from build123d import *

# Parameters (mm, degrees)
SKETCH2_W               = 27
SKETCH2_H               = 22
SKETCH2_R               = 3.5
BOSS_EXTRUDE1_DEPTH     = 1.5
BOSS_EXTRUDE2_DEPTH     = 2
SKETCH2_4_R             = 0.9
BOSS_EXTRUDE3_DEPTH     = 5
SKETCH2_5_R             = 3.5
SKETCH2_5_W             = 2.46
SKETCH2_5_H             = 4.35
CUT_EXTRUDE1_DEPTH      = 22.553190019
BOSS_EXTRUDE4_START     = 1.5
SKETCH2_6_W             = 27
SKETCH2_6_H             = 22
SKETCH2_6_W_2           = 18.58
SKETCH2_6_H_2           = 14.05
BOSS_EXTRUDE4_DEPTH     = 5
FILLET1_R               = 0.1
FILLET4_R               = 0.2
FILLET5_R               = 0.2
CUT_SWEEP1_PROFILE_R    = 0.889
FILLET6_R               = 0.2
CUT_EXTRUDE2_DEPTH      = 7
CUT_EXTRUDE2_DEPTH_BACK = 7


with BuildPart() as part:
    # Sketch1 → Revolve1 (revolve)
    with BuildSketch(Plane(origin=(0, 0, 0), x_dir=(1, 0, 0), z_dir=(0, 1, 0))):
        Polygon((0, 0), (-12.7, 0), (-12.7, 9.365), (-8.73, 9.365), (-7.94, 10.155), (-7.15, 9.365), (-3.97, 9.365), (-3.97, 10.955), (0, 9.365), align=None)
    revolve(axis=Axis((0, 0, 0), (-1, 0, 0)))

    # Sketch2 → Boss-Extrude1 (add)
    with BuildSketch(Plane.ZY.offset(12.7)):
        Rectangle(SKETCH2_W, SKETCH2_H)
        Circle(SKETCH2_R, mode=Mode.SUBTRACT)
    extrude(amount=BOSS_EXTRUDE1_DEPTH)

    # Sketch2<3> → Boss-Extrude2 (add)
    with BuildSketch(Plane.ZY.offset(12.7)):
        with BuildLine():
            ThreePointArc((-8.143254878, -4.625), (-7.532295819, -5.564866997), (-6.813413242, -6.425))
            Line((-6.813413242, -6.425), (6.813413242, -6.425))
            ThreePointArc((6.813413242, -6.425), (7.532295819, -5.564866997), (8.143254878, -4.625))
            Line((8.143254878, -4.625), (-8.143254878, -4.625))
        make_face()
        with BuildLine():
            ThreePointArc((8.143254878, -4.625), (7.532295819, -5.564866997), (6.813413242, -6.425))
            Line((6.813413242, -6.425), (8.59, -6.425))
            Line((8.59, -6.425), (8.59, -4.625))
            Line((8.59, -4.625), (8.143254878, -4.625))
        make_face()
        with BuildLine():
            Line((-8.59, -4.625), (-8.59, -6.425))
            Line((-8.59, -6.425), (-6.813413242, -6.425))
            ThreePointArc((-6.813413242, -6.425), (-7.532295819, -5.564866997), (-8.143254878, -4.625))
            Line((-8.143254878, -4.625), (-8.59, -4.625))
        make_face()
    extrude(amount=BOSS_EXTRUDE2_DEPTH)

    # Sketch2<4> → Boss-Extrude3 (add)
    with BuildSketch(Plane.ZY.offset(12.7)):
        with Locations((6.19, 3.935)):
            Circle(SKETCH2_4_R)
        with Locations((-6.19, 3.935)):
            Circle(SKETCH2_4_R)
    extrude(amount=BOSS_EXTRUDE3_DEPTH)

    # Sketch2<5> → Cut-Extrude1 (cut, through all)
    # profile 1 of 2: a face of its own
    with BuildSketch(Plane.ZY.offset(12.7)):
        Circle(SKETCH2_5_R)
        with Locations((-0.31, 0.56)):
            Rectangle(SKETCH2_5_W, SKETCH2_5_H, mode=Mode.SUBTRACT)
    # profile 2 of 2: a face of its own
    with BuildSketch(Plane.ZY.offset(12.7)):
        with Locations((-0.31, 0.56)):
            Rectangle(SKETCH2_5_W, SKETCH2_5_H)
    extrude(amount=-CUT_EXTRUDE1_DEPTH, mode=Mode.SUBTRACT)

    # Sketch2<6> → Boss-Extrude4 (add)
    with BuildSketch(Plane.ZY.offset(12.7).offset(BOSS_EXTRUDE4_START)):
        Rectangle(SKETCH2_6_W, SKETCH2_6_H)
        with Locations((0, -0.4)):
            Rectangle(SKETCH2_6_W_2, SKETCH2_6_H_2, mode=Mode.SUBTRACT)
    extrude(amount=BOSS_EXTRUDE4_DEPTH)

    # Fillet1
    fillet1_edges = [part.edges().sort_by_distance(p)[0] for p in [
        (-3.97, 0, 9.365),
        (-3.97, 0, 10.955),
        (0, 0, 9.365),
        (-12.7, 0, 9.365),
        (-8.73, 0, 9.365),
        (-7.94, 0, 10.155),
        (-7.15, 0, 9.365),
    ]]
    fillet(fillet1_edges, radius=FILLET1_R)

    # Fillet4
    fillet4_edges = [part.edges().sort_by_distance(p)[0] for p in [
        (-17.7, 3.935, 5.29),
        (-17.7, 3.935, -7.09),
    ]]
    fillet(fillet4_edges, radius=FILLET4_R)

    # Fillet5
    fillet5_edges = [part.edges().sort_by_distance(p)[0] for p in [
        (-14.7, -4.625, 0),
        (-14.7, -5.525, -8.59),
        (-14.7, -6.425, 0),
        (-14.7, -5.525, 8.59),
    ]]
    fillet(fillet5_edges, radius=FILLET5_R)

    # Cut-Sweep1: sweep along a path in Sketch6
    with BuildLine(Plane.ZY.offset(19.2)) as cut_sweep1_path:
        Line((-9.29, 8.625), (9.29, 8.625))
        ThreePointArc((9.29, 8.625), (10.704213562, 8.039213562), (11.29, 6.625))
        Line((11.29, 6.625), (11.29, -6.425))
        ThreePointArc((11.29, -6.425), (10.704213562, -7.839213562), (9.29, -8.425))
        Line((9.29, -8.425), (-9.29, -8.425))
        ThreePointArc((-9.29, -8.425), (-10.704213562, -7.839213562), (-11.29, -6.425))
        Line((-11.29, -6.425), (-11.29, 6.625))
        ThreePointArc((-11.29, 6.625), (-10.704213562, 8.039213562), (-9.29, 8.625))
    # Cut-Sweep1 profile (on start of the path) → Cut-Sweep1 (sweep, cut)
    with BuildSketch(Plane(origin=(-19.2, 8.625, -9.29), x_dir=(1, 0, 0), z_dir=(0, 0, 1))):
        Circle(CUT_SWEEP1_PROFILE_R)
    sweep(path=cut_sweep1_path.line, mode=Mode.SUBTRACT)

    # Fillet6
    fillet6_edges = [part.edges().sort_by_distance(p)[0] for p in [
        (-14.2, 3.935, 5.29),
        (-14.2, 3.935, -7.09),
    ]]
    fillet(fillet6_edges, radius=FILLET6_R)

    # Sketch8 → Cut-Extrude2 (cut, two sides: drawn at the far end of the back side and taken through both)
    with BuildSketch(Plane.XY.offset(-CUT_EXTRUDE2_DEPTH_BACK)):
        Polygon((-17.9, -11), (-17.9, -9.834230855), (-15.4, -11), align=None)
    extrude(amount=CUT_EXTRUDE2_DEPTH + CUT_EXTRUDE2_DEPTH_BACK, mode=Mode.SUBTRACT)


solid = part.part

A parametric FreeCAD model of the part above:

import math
import FreeCAD as App
import Part
import Sketcher

V = App.Vector
Q = App.Units.Quantity


def edges_at(feature, points):
    """Names of the edges that pass closest to the given points."""
    edges = feature.Shape.Edges
    near = lambda p: min(range(len(edges)), key=lambda i: edges[i].distToShape(Part.Vertex(*p))[0])
    return sorted({f"Edge{near(p) + 1}" for p in points})


def add_polygon(sketch, points):
    """Adds a closed chain of lines whose ends are joined by coincident constraints."""
    first, n = sketch.GeometryCount, len(points)
    for a, b in zip(points, points[1:] + points[:1]):
        sketch.addGeometry(Part.LineSegment(App.Vector(*a, 0), App.Vector(*b, 0)), False)
    for i in range(n):
        sketch.addConstraint(Sketcher.Constraint("Coincident", first + i, 2, first + (i + 1) % n, 1))

doc = App.newDocument("Part")
params = doc.addObject("Spreadsheet::Sheet", "Params")
for row, (alias, value) in enumerate([
    ("sketch1_width", "12.7 mm"),
    ("sketch1_width2", "3.18 mm"),
    ("sketch1_width3", "3.97 mm"),
    ("sketch1_height", "1.59 mm"),
    ("revolution_angle", "360 deg"),
    ("sketch2_diameter", "7 mm"),
    ("sketch2_width", "22 mm"),
    ("sketch2_height", "27 mm"),
    ("pad1_length", "1.5 mm"),
    ("sketch3_width", "1.8 mm"),
    ("sketch3_height", "17.18 mm"),
    ("pad2_length", "2 mm"),
    ("sketch4_diameter", "1.8 mm"),
    ("pad3_length", "5 mm"),
    ("sketch5_diameter", "7 mm"),
    ("pocket1_length", "22.55319 mm"),
    ("sketch6_width", "22 mm"),
    ("sketch6_height", "27 mm"),
    ("sketch6_width2", "14.05 mm"),
    ("sketch6_height2", "18.58 mm"),
    ("pad4_length", "5 mm"),
    ("fillet_radius", "0.1 mm"),
    ("fillet2_radius", "0.2 mm"),
    ("fillet3_radius", "0.2 mm"),
    ("sketch8_radius", "2 mm"),
    ("sketch8_width", "13.05 mm"),
    ("sketch8_height", "18.58 mm"),
    ("fillet4_radius", "0.2 mm"),
    ("sketch9_width", "2.5 mm"),
    ("pocket2_length", "7 mm"),
    ("pocket2_length2", "7 mm"),
], start=1):
    params.set(f"A{row}", alias)
    params.set(f"B{row}", "=" + value)
    params.setAlias(f"B{row}", alias)

body = doc.addObject("PartDesign::Body", "Body")

# Sketch on XZ plane
sketch1 = doc.addObject("Sketcher::SketchObject", "Sketch")
body.addObject(sketch1)
sketch1.AttachmentSupport = (doc.XZ_Plane, [""])
sketch1.MapMode = "FlatFace"
add_polygon(sketch1, [(-12.7, 0), (0, 0), (0, -9.4), (-4, -11), (-4, -9.4), (-7.2, -9.4), (-7.9, -10.2), (-8.7, -9.4), (-12.7, -9.4)])  # lines 0-8
sketch1.addConstraint([
    Sketcher.Constraint("Horizontal", 0),
    Sketcher.Constraint("Vertical", 1),
    Sketcher.Constraint("Vertical", 3),
    Sketcher.Constraint("Horizontal", 4),
    Sketcher.Constraint("Horizontal", 7),
    Sketcher.Constraint("Vertical", 8),
    Sketcher.Constraint("Coincident", 0, 2, -1, 1),
    Sketcher.Constraint("Perpendicular", 5, 6),
    Sketcher.Constraint("Horizontal", 1, 2, 3, 2),
    Sketcher.Constraint("Horizontal", 4, 2, 6, 2),
    Sketcher.Constraint("Equal", 5, 6),
    Sketcher.Constraint("DistanceX", 0, 1, 0, 2, 12.7),
    Sketcher.Constraint("DistanceX", 4, 2, 4, 1, 3.18),
    Sketcher.Constraint("DistanceX", 7, 2, 7, 1, 3.97),
    Sketcher.Constraint("DistanceY", 3, 1, 3, 2, 1.59),
    Sketcher.Constraint("DistanceY", 2, 2, 5, 2, 0.8),
    Sketcher.Constraint("DistanceY", 1, 2, 1, 1, 9.365),
])
sketch1.setExpression("Constraints[20]", "Params.sketch1_width")
sketch1.setExpression("Constraints[21]", "Params.sketch1_width2")
sketch1.setExpression("Constraints[22]", "Params.sketch1_width3")
sketch1.setExpression("Constraints[23]", "Params.sketch1_height")
revolution = doc.addObject("PartDesign::Revolution", "Revolution")
body.addObject(revolution)
revolution.Profile = sketch1
revolution.ReferenceAxis = (sketch1, ["H_Axis"])
revolution.setExpression("Angle", "Params.revolution_angle")

# Sketch on YZ plane
sketch2 = doc.addObject("Sketcher::SketchObject", "Sketch001")
body.addObject(sketch2)
sketch2.AttachmentSupport = (doc.YZ_Plane, [""])
sketch2.MapMode = "FlatFace"
sketch2.AttachmentOffset = App.Placement(V(0, 0, -12.7), App.Rotation())
add_polygon(sketch2, [(11, -13.5), (-11, -13.5), (-11, 13.5), (11, 13.5)])  # lines 0-3
sketch2.addGeometry(Part.Circle(V(0, 0, 0), V(0, 0, 1), 3.5), False)  # 4
sketch2.addConstraint([
    Sketcher.Constraint("Horizontal", 0),
    Sketcher.Constraint("Vertical", 1),
    Sketcher.Constraint("Horizontal", 2),
    Sketcher.Constraint("Vertical", 3),
    Sketcher.Constraint("Coincident", 4, 3, -1, 1),
    Sketcher.Constraint("Symmetric", 0, 2, 2, 2, -1, 1),
    Sketcher.Constraint("Diameter", 4, 7.0),
    Sketcher.Constraint("DistanceX", 0, 2, 0, 1, 22.0),
    Sketcher.Constraint("DistanceY", 1, 1, 1, 2, 27.0),
])
sketch2.setExpression("Constraints[10]", "Params.sketch2_diameter")
sketch2.setExpression("Constraints[11]", "Params.sketch2_width")
sketch2.setExpression("Constraints[12]", "Params.sketch2_height")
pad1 = doc.addObject("PartDesign::Pad", "Pad")
body.addObject(pad1)
pad1.Profile = sketch2
pad1.setExpression("Length", "Params.pad1_length")
pad1.Reversed = True

# Sketch on YZ plane
sketch3 = doc.addObject("Sketcher::SketchObject", "Sketch002")
body.addObject(sketch3)
sketch3.AttachmentSupport = (doc.YZ_Plane, [""])
sketch3.MapMode = "FlatFace"
sketch3.AttachmentOffset = App.Placement(V(0, 0, -12.7), App.Rotation())
add_polygon(sketch3, [(-6.4, 8.6), (-4.6, 8.6), (-4.6, -8.6), (-6.4, -8.6)])  # lines 0-3
sketch3.addConstraint([
    Sketcher.Constraint("Horizontal", 0),
    Sketcher.Constraint("Vertical", 1),
    Sketcher.Constraint("Horizontal", 2),
    Sketcher.Constraint("Vertical", 3),
    Sketcher.Constraint("DistanceX", 0, 1, 0, 2, 1.8),
    Sketcher.Constraint("DistanceY", 1, 2, 1, 1, 17.18),
    Sketcher.Constraint("DistanceY", -1, 1, 0, 2, 8.59),
    Sketcher.Constraint("DistanceX", 0, 2, -1, 1, 4.625),
])
sketch3.setExpression("Constraints[8]", "Params.sketch3_width")
sketch3.setExpression("Constraints[9]", "Params.sketch3_height")
pad2 = doc.addObject("PartDesign::Pad", "Pad001")
body.addObject(pad2)
pad2.Profile = sketch3
pad2.setExpression("Length", "Params.pad2_length")
pad2.Reversed = True

# Sketch on YZ plane
sketch4 = doc.addObject("Sketcher::SketchObject", "Sketch003")
body.addObject(sketch4)
sketch4.AttachmentSupport = (doc.YZ_Plane, [""])
sketch4.MapMode = "FlatFace"
sketch4.AttachmentOffset = App.Placement(V(0, 0, -12.7), App.Rotation())
sketch4.addGeometry([
    Part.Circle(V(3.9, 6.2, 0), V(0, 0, 1), 0.9),
    Part.Circle(V(3.9, -6.2, 0), V(0, 0, 1), 0.9),
], False)
sketch4.addConstraint([
    Sketcher.Constraint("Equal", 0, 1),
    Sketcher.Constraint("Symmetric", 0, 3, 1, 3, -1),
    Sketcher.Constraint("Diameter", 0, 1.8),
    Sketcher.Constraint("DistanceY", -1, 1, 0, 3, 6.19),
    Sketcher.Constraint("DistanceX", -1, 1, 0, 3, 3.935),
])
sketch4.setExpression("Constraints[2]", "Params.sketch4_diameter")
pad3 = doc.addObject("PartDesign::Pad", "Pad002")
body.addObject(pad3)
pad3.Profile = sketch4
pad3.setExpression("Length", "Params.pad3_length")
pad3.Reversed = True

# Sketch on YZ plane
sketch5 = doc.addObject("Sketcher::SketchObject", "Sketch004")
body.addObject(sketch5)
sketch5.AttachmentSupport = (doc.YZ_Plane, [""])
sketch5.MapMode = "FlatFace"
sketch5.AttachmentOffset = App.Placement(V(0, 0, -12.7), App.Rotation())
sketch5.addGeometry(Part.Circle(V(0, 0, 0), V(0, 0, 1), 3.5), False)
sketch5.addConstraint([
    Sketcher.Constraint("Coincident", 0, 3, -1, 1),
    Sketcher.Constraint("Diameter", 0, 7.0),
])
sketch5.setExpression("Constraints[1]", "Params.sketch5_diameter")
pocket1 = doc.addObject("PartDesign::Pocket", "Pocket")
body.addObject(pocket1)
pocket1.Profile = sketch5
pocket1.setExpression("Length", "Params.pocket1_length")
pocket1.Reversed = True

# Sketch on YZ plane
sketch6 = doc.addObject("Sketcher::SketchObject", "Sketch005")
body.addObject(sketch6)
sketch6.AttachmentSupport = (doc.YZ_Plane, [""])
sketch6.MapMode = "FlatFace"
sketch6.AttachmentOffset = App.Placement(V(0, 0, -14.2), App.Rotation())
add_polygon(sketch6, [(11, -14), (-11, -14), (-11, 14), (11, 14)])  # lines 0-3
add_polygon(sketch6, [(-7, 9), (-7, -9), (7, -9), (7, 9)])  # lines 4-7
sketch6.addConstraint([
    Sketcher.Constraint("Horizontal", 0),
    Sketcher.Constraint("Vertical", 1),
    Sketcher.Constraint("Horizontal", 2),
    Sketcher.Constraint("Vertical", 3),
    Sketcher.Constraint("Vertical", 4),
    Sketcher.Constraint("Horizontal", 5),
    Sketcher.Constraint("Vertical", 6),
    Sketcher.Constraint("Horizontal", 7),
    Sketcher.Constraint("Symmetric", 0, 2, 2, 2, -1, 1),
    Sketcher.Constraint("DistanceX", 0, 2, 0, 1, 22.0),
    Sketcher.Constraint("DistanceY", 1, 1, 1, 2, 27.0),
    Sketcher.Constraint("DistanceX", 5, 1, 5, 2, 14.05),
    Sketcher.Constraint("DistanceY", 4, 2, 4, 1, 18.58),
    Sketcher.Constraint("DistanceY", 4, 2, -1, 1, 9.29),
    Sketcher.Constraint("DistanceX", 4, 2, -1, 1, 7.425),
])
sketch6.setExpression("Constraints[17]", "Params.sketch6_width")
sketch6.setExpression("Constraints[18]", "Params.sketch6_height")
sketch6.setExpression("Constraints[19]", "Params.sketch6_width2")
sketch6.setExpression("Constraints[20]", "Params.sketch6_height2")
pad4 = doc.addObject("PartDesign::Pad", "Pad003")
body.addObject(pad4)
pad4.Profile = sketch6
pad4.setExpression("Length", "Params.pad4_length")
pad4.Reversed = True
doc.recompute()

fillet = doc.addObject("PartDesign::Fillet", "Fillet")
body.addObject(fillet)
fillet.Base = (pad4, edges_at(pad4, [
    (-3.97, 0, 9.365),
    (-3.97, 0, 10.955),
    (0, 0, 9.365),
    (-12.7, 0, 9.365),
    (-8.73, 0, 9.365),
    (-7.94, 0, 10.155),
    (-7.15, 0, 9.365),
]))
fillet.setExpression("Radius", "Params.fillet_radius")
doc.recompute()

fillet2 = doc.addObject("PartDesign::Fillet", "Fillet001")
body.addObject(fillet2)
fillet2.Base = (fillet, edges_at(fillet, [(-17.7, 3.935, 5.29), (-17.7, 3.935, -7.09)]))
fillet2.setExpression("Radius", "Params.fillet2_radius")
doc.recompute()

fillet3 = doc.addObject("PartDesign::Fillet", "Fillet002")
body.addObject(fillet3)
fillet3.Base = (fillet2, edges_at(fillet2, [
    (-14.7, -4.625, 0),
    (-14.7, -5.525, -8.59),
    (-14.7, -6.425, 0),
    (-14.7, -5.525, 8.59),
]))
fillet3.setExpression("Radius", "Params.fillet3_radius")

# Sketch on XY plane
sketch7 = doc.addObject("Sketcher::SketchObject", "Sketch006")
body.addObject(sketch7)
sketch7.AttachmentSupport = (doc.XY_Plane, [""])
sketch7.MapMode = "FlatFace"
sketch7.AttachmentOffset = App.Placement(V(0, 0, -9.29), App.Rotation())
sketch7.addGeometry(Part.Circle(V(-19.2, 8.6, 0), V(0, 0, 1), 0.9), False)
sketch7.addConstraint([
    Sketcher.Constraint("Diameter", 0, 1.778),
    Sketcher.Constraint("DistanceX", 0, 3, -1, 1, 19.2),
    Sketcher.Constraint("DistanceY", -1, 1, 0, 3, 8.625),
])

# Sketch on YZ plane
sketch8 = doc.addObject("Sketcher::SketchObject", "Sketch007")
body.addObject(sketch8)
sketch8.AttachmentSupport = (doc.YZ_Plane, [""])
sketch8.MapMode = "FlatFace"
sketch8.AttachmentOffset = App.Placement(V(0, 0, -19.2), App.Rotation())
sketch8.addGeometry([
    Part.LineSegment(V(8.6, -9.3, 0), V(8.6, 9.3, 0)),  # 0
    Part.ArcOfCircle(Part.Circle(V(6.6, 9.3, 0), V(0, 0, 1), 2), math.radians(0), math.radians(90)),  # 1
    Part.LineSegment(V(6.6, 11.3, 0), V(-6.4, 11.3, 0)),  # 2
    Part.ArcOfCircle(Part.Circle(V(-6.4, 9.3, 0), V(0, 0, 1), 2), math.radians(90), math.radians(180)),  # 3
    Part.LineSegment(V(-8.4, 9.3, 0), V(-8.4, -9.3, 0)),  # 4
    Part.ArcOfCircle(Part.Circle(V(-6.4, -9.3, 0), V(0, 0, 1), 2), math.radians(-180), math.radians(-90)),  # 5
    Part.LineSegment(V(-6.4, -11.3, 0), V(6.6, -11.3, 0)),  # 6
    Part.ArcOfCircle(Part.Circle(V(6.6, -9.3, 0), V(0, 0, 1), 2), math.radians(-90), math.radians(0)),  # 7
], False)
sketch8.addConstraint([
    Sketcher.Constraint("Tangent", 0, 2, 1, 1),
    Sketcher.Constraint("Tangent", 1, 2, 2, 1),
    Sketcher.Constraint("Tangent", 2, 2, 3, 1),
    Sketcher.Constraint("Tangent", 3, 2, 4, 1),
    Sketcher.Constraint("Tangent", 4, 2, 5, 1),
    Sketcher.Constraint("Tangent", 5, 2, 6, 1),
    Sketcher.Constraint("Tangent", 6, 2, 7, 1),
    Sketcher.Constraint("Tangent", 7, 2, 0, 1),
    Sketcher.Constraint("Vertical", 0),
    Sketcher.Constraint("Horizontal", 2),
    Sketcher.Constraint("Vertical", 4),
    Sketcher.Constraint("Horizontal", 6),
    Sketcher.Constraint("Equal", 1, 3),
    Sketcher.Constraint("Equal", 3, 5),
    Sketcher.Constraint("Equal", 5, 7),
    Sketcher.Constraint("Radius", 1, 2.0),
    Sketcher.Constraint("DistanceX", 2, 2, 2, 1, 13.05),
    Sketcher.Constraint("DistanceY", 0, 1, 0, 2, 18.58),
    Sketcher.Constraint("DistanceY", -1, 1, 1, 3, 9.29),
    Sketcher.Constraint("DistanceX", -1, 1, 1, 3, 6.625),
])
sketch8.setExpression("Constraints[15]", "Params.sketch8_radius")
sketch8.setExpression("Constraints[16]", "Params.sketch8_width")
sketch8.setExpression("Constraints[17]", "Params.sketch8_height")
doc.recompute()

subtractivepipe = doc.addObject("PartDesign::SubtractivePipe", "SubtractivePipe")
body.addObject(subtractivepipe)
subtractivepipe.Profile = sketch7
subtractivepipe.Spine = (sketch8, ["Edge1", "Edge2", "Edge3", "Edge4", "Edge5", "Edge6", "Edge7", "Edge8"])
doc.recompute()

fillet4 = doc.addObject("PartDesign::Fillet", "Fillet003")
body.addObject(fillet4)
fillet4.Base = (subtractivepipe, edges_at(subtractivepipe, [(-14.2, 3.935, 5.29), (-14.2, 3.935, -7.09)]))
fillet4.setExpression("Radius", "Params.fillet4_radius")

# Sketch on XY plane
sketch9 = doc.addObject("Sketcher::SketchObject", "Sketch008")
body.addObject(sketch9)
sketch9.AttachmentSupport = (doc.XY_Plane, [""])
sketch9.MapMode = "FlatFace"
add_polygon(sketch9, [(-17.9, -9.8), (-17.9, -11), (-15.4, -11)])  # lines 0-2
sketch9.addConstraint([
    Sketcher.Constraint("Vertical", 0),
    Sketcher.Constraint("Horizontal", 1),
    Sketcher.Constraint("Angle", 2, Q("155 deg")),
    Sketcher.Constraint("DistanceX", 1, 1, 1, 2, 2.5),
    Sketcher.Constraint("DistanceY", 0, 2, -1, 1, 11.0),
    Sketcher.Constraint("DistanceX", 0, 2, -1, 1, 17.9),
])
sketch9.setExpression("Constraints[6]", "Params.sketch9_width")
pocket2 = doc.addObject("PartDesign::Pocket", "Pocket001")
body.addObject(pocket2)
pocket2.Profile = sketch9
pocket2.Type = "TwoLengths"
pocket2.setExpression("Length", "Params.pocket2_length")
pocket2.setExpression("Length2", "Params.pocket2_length2")
pocket2.Reversed = True

doc.recompute()
